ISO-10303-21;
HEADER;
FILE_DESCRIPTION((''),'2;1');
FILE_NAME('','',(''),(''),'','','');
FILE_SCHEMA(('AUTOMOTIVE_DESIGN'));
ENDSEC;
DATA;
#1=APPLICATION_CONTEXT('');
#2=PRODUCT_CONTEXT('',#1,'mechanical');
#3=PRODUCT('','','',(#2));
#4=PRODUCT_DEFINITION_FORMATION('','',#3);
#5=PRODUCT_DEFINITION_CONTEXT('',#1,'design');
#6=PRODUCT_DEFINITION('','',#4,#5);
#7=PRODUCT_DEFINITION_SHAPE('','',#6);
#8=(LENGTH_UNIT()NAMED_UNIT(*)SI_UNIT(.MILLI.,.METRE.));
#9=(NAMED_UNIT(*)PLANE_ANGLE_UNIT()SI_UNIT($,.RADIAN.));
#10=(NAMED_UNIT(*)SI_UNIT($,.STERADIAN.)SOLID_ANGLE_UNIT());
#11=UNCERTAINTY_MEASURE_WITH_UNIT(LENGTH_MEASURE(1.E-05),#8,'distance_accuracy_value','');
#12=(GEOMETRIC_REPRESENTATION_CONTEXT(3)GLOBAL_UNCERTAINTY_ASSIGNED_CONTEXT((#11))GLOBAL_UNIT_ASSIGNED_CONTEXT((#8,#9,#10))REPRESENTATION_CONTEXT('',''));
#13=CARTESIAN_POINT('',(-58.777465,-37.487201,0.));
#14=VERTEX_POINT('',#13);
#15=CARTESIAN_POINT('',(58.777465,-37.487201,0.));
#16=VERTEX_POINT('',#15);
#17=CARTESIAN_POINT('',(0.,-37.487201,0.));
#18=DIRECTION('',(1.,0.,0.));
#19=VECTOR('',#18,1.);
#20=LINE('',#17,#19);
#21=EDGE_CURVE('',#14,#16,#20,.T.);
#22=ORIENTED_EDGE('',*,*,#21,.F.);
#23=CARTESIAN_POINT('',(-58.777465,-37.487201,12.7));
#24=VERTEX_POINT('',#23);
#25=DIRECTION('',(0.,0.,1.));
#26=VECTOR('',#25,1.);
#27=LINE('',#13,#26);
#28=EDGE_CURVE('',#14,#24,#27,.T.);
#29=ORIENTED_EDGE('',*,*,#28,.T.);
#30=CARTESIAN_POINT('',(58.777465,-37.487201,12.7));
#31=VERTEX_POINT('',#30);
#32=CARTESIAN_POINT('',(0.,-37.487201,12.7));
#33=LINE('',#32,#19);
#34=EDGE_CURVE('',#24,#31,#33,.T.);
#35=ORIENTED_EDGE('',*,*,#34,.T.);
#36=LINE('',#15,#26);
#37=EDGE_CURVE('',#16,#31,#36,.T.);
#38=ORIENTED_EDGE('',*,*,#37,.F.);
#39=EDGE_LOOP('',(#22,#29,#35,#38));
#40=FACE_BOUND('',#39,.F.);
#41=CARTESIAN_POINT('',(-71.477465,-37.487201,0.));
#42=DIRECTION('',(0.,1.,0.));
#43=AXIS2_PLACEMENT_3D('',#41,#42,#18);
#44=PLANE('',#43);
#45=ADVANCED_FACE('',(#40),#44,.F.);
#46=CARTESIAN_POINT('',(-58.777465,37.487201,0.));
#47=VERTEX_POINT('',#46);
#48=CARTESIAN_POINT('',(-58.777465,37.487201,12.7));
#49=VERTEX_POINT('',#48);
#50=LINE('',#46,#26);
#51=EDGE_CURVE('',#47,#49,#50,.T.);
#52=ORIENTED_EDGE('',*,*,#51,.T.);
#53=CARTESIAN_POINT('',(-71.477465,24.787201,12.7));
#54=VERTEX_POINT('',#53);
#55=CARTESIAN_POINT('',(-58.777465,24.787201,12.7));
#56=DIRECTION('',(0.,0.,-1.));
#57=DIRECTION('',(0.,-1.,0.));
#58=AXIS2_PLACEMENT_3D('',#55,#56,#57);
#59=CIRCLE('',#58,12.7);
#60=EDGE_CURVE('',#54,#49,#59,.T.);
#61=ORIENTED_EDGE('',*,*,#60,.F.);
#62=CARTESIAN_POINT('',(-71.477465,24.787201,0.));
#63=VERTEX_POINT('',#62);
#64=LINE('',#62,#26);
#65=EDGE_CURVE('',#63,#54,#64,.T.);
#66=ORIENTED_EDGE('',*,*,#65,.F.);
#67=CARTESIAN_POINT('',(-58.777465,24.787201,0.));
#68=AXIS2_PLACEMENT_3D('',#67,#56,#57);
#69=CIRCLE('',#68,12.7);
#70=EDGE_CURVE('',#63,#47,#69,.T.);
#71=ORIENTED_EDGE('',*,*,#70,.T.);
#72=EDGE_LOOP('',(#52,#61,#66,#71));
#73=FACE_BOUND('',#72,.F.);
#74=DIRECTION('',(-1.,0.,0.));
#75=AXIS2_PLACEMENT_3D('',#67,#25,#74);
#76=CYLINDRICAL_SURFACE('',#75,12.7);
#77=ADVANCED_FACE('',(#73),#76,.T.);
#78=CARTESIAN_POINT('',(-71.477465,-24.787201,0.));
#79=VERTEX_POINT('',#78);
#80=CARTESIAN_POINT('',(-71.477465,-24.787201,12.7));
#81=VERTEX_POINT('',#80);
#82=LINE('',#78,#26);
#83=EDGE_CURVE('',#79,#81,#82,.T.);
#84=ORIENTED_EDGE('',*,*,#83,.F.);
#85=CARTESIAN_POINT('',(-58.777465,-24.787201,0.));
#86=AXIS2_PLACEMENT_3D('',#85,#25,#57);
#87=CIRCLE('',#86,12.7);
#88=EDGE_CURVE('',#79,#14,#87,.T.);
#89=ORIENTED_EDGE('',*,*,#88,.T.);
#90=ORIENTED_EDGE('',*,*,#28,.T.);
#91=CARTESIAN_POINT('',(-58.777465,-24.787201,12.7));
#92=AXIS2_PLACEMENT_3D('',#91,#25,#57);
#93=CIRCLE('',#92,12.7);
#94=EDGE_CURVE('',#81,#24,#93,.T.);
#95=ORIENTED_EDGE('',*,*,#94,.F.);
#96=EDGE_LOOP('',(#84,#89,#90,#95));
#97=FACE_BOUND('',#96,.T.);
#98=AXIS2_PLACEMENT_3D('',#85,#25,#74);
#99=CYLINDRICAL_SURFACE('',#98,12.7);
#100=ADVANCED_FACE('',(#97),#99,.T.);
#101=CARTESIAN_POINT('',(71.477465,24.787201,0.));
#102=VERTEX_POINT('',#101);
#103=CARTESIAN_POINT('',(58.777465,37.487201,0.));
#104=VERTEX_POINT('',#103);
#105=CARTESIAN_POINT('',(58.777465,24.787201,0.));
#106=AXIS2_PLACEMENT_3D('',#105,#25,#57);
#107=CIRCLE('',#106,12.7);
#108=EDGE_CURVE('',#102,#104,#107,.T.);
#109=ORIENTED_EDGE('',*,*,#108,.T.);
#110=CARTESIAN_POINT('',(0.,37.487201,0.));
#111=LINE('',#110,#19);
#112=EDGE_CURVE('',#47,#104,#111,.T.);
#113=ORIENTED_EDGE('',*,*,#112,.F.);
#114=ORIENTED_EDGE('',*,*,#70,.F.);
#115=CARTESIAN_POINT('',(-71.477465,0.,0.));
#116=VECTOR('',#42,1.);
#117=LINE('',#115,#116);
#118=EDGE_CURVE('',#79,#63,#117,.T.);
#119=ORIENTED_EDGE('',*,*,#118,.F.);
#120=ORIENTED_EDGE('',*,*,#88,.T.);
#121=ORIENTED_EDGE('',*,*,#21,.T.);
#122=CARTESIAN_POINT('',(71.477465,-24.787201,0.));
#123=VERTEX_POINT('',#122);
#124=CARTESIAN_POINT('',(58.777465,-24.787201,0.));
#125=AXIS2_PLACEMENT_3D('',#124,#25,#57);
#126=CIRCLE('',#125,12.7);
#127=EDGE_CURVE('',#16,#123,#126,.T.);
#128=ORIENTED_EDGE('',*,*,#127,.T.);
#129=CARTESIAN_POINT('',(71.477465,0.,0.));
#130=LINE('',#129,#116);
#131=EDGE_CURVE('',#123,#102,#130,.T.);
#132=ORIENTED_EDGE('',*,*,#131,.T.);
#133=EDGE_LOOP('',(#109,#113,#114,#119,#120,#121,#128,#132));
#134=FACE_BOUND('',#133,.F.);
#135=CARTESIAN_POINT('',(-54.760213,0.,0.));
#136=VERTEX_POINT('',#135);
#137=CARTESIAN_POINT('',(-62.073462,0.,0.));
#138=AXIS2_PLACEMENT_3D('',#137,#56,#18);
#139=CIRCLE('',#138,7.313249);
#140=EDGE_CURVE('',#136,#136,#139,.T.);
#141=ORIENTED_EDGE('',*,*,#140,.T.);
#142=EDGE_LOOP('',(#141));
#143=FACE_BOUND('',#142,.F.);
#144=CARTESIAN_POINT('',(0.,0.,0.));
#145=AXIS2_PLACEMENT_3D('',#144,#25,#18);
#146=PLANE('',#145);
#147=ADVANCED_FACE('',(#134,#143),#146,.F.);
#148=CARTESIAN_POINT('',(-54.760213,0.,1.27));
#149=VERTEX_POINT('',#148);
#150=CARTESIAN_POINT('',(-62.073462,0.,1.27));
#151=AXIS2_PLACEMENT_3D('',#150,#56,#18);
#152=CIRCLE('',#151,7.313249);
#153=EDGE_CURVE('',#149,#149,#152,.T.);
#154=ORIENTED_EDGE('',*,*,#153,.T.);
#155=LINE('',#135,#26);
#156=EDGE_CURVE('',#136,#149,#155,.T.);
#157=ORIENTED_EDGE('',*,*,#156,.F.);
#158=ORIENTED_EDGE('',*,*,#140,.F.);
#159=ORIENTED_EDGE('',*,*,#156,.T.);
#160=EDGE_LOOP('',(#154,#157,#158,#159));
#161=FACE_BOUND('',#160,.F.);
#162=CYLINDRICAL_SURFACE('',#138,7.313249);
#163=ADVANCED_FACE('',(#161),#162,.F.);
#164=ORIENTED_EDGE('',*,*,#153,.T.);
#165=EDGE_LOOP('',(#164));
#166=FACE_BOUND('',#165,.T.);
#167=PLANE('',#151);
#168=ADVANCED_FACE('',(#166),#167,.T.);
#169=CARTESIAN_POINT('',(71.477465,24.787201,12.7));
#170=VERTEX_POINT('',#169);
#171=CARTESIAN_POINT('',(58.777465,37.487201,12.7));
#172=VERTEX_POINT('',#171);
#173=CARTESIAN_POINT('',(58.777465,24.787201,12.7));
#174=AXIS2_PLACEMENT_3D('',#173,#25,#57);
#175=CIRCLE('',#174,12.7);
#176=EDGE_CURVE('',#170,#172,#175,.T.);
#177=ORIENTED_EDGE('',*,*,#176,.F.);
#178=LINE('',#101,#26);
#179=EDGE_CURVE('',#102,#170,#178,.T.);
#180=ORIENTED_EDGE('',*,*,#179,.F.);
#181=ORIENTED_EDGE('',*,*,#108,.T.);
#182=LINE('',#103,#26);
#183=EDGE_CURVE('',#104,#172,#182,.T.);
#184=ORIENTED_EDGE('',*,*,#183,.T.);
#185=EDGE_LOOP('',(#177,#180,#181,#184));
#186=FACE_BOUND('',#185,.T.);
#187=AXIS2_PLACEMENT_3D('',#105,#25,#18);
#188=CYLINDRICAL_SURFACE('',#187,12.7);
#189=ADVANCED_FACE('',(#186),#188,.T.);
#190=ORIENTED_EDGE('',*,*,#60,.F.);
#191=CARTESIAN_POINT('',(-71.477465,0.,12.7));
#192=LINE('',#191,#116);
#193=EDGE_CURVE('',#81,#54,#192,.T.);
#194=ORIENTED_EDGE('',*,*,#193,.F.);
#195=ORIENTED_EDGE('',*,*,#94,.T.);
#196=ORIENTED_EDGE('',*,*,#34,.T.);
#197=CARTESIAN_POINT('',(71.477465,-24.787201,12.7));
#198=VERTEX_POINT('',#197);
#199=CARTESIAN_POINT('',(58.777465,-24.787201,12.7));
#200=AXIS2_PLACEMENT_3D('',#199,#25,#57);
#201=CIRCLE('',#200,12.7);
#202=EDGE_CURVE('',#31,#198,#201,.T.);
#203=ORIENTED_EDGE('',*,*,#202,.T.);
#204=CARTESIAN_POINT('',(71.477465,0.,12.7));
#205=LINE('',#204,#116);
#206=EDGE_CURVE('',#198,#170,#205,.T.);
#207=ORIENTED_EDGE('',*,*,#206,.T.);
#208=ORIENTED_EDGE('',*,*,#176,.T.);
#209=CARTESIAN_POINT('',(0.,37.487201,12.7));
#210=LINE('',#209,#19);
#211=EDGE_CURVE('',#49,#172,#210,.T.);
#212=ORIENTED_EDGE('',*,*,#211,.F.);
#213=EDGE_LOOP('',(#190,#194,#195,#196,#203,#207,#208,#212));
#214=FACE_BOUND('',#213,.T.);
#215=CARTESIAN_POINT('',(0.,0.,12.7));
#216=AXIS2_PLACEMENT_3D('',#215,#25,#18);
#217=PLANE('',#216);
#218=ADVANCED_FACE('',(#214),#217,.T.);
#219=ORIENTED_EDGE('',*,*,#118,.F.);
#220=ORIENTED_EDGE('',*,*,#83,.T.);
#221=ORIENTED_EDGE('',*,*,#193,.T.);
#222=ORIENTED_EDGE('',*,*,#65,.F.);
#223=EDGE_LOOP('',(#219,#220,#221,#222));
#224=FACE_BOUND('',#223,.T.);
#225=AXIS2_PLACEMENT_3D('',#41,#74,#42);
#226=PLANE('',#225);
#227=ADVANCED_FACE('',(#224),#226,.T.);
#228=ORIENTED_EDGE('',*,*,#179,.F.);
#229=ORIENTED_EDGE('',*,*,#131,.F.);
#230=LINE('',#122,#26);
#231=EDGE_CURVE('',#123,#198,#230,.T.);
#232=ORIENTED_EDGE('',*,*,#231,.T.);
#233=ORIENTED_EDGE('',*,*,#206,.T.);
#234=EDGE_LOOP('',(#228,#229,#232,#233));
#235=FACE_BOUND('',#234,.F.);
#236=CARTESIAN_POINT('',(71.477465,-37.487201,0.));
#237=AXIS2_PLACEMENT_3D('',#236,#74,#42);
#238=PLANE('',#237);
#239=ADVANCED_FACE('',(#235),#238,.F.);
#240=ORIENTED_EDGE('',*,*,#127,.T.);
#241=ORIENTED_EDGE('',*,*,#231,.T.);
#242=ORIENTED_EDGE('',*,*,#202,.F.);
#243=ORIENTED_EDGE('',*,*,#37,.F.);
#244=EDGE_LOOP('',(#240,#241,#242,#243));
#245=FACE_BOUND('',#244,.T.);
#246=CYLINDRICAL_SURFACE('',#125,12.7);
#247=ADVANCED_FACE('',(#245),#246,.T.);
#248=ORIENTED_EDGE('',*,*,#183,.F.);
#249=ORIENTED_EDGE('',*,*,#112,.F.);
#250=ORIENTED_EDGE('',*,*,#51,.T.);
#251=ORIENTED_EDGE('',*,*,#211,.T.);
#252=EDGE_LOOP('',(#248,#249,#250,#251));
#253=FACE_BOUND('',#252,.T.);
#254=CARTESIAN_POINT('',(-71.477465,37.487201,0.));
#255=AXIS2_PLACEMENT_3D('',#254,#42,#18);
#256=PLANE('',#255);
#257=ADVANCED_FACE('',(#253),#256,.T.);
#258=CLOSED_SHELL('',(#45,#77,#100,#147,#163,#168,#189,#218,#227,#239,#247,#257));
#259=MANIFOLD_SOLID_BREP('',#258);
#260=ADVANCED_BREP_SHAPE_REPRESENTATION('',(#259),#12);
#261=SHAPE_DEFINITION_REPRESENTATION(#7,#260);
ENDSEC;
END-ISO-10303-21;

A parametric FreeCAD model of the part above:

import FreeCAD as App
import Part
import Sketcher

V = App.Vector
Q = App.Units.Quantity


def edges_at(feature, points):
    """Names of the edges that pass closest to the given points."""
    edges = feature.Shape.Edges
    near = lambda p: min(range(len(edges)), key=lambda i: edges[i].distToShape(Part.Vertex(*p))[0])
    return sorted({f"Edge{near(p) + 1}" for p in points})


def add_polygon(sketch, points):
    """Adds a closed chain of lines whose ends are joined by coincident constraints."""
    first, n = sketch.GeometryCount, len(points)
    for a, b in zip(points, points[1:] + points[:1]):
        sketch.addGeometry(Part.LineSegment(App.Vector(*a, 0), App.Vector(*b, 0)), False)
    for i in range(n):
        sketch.addConstraint(Sketcher.Constraint("Coincident", first + i, 2, first + (i + 1) % n, 1))

doc = App.newDocument("Part")
params = doc.addObject("Spreadsheet::Sheet", "Params")
for row, (alias, value) in enumerate([
    ("pad1_length", "0.5 in"),
    ("fillet_radius", "0.5 in"),
    ("pocket1_length", "0.05 in"),
], start=1):
    params.set(f"A{row}", alias)
    params.set(f"B{row}", "=" + value)
    params.setAlias(f"B{row}", alias)

body = doc.addObject("PartDesign::Body", "Body")

# Sketch on XY plane
sketch1 = body.newObject("Sketcher::SketchObject", "Sketch")
sketch1.AttachmentSupport = (doc.getObject("XY_Plane"), [""])
sketch1.MapMode = "FlatFace"
add_polygon(sketch1, [(-71.477465, 37.487201), (-71.477465, -37.487201), (71.477465, -37.487201), (71.477465, 37.487201)])  # lines 0-3
sketch1.addConstraint([
    Sketcher.Constraint("Vertical", 0),
    Sketcher.Constraint("Horizontal", 1),
    Sketcher.Constraint("Vertical", 2),
    Sketcher.Constraint("Horizontal", 3),
    Sketcher.Constraint("Symmetric", 0, 2, 2, 2, -1, 1),
    Sketcher.Constraint("DistanceY", 0, 2, 0, 1, Q("74.974402 mm")),
    Sketcher.Constraint("DistanceX", 1, 1, 1, 2, Q("142.95493 mm")),
])
pad1 = body.newObject("PartDesign::Pad", "Pad")
pad1.Profile = sketch1
pad1.setExpression("Length", "Params.pad1_length")
doc.recompute()

fillet = body.newObject("PartDesign::Fillet", "Fillet")
fillet.Base = (pad1, edges_at(pad1, [
    (71.477, -37.487, 6.35),
    (71.477, 37.487, 6.35),
    (-71.477, 37.487, 6.35),
    (-71.477, -37.487, 6.35),
]))
fillet.setExpression("Radius", "Params.fillet_radius")

# Sketch on XY plane
sketch2 = body.newObject("Sketcher::SketchObject", "Sketch001")
sketch2.AttachmentSupport = (doc.getObject("XY_Plane"), [""])
sketch2.MapMode = "FlatFace"
sketch2.addGeometry(Part.Circle(V(-62.073462, 0, 0), V(0, 0, 1), 7.313249), False)
sketch2.addConstraint([
    Sketcher.Constraint("PointOnObject", 0, 3, -1),
    Sketcher.Constraint("Diameter", 0, Q("14.626498 mm")),
    Sketcher.Constraint("DistanceX", 0, 3, -1, 1, Q("62.073462 mm")),
])
pocket1 = body.newObject("PartDesign::Pocket", "Pocket")
pocket1.Profile = sketch2
pocket1.setExpression("Length", "Params.pocket1_length")
pocket1.Reversed = True

doc.recompute()
